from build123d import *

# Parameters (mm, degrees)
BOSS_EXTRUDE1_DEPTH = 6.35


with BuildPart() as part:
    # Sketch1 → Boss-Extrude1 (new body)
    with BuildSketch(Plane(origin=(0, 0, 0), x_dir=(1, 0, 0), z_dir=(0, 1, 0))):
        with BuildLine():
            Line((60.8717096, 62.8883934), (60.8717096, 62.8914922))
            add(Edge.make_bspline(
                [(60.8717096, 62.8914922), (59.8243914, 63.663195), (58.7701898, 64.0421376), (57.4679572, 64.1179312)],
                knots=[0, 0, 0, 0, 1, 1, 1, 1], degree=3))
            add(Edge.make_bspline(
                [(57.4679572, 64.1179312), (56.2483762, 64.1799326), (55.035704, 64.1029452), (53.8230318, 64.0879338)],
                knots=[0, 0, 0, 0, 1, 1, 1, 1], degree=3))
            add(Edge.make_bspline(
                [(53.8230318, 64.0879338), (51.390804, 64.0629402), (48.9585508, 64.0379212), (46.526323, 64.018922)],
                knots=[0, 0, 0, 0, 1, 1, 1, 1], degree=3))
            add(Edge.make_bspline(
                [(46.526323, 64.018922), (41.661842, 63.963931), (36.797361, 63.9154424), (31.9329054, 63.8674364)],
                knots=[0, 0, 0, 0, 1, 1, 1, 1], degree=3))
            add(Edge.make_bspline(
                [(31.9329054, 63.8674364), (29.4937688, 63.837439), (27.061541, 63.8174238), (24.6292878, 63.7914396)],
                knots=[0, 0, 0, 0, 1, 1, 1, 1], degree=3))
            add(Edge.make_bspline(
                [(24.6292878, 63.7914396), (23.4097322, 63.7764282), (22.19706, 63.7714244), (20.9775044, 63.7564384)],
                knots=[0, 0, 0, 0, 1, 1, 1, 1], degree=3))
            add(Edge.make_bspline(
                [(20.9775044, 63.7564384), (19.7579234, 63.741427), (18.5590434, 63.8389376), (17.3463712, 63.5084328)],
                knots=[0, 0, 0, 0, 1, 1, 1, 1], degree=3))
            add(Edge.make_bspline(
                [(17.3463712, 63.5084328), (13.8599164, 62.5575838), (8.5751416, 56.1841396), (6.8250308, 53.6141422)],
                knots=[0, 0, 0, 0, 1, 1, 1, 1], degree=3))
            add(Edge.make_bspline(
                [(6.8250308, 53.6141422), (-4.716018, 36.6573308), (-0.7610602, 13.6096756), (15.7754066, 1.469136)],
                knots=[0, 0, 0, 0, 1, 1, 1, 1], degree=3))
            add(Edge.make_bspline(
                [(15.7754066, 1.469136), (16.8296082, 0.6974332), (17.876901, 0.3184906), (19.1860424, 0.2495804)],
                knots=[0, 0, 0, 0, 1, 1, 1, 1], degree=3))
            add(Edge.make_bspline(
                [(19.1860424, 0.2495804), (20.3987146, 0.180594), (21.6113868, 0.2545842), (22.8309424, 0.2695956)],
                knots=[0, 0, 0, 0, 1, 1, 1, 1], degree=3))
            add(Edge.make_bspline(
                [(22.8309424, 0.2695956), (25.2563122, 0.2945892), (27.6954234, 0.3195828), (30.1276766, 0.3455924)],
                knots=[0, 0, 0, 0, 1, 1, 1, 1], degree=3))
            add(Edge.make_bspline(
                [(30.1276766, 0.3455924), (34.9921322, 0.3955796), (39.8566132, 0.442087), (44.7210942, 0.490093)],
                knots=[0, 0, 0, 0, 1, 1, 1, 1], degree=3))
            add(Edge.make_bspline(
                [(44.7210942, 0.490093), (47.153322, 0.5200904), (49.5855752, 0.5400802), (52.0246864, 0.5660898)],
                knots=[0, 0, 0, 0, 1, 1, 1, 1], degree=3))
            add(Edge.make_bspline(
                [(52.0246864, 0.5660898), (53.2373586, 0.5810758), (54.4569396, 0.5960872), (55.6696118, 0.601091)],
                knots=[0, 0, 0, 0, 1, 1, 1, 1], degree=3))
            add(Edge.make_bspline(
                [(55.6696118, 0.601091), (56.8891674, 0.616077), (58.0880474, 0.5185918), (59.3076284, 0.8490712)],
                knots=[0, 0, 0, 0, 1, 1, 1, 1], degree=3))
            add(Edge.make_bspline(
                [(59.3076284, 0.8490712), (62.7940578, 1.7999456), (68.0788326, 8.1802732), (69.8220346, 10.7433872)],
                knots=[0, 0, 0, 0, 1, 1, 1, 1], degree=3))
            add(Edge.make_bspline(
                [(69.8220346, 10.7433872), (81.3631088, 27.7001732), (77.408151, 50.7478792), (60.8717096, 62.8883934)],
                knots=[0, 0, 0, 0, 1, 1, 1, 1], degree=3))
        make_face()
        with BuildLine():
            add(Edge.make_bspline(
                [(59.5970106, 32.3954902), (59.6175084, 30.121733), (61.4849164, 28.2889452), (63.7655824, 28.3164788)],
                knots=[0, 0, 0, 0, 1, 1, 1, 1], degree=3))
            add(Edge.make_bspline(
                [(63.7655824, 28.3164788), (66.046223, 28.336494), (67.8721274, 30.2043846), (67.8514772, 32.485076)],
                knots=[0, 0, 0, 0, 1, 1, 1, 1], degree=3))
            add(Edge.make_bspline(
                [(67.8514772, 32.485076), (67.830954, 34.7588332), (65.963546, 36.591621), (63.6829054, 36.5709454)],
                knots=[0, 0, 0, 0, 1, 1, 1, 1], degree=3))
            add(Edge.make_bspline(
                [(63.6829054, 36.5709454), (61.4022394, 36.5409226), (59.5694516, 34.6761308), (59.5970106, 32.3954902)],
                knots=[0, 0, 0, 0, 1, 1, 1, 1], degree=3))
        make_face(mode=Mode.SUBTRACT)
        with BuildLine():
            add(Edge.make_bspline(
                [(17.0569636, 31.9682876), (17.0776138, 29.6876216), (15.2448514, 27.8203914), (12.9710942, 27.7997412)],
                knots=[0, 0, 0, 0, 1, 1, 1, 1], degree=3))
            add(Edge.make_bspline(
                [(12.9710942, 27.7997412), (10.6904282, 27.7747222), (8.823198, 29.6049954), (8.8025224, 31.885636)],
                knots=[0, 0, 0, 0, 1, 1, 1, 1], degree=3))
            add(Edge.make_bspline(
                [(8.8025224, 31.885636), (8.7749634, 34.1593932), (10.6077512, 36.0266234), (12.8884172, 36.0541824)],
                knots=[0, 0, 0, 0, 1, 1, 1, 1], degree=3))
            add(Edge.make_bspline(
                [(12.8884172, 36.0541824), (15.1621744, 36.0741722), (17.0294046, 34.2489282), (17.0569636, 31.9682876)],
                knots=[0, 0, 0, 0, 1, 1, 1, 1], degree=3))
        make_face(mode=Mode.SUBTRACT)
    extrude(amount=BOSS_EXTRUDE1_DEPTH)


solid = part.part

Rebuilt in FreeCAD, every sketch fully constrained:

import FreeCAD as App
import Part
import Sketcher
from FreeCAD import Vector
Q = App.Units.Quantity

doc = App.newDocument("Part")
body = doc.addObject("PartDesign::Body", "Body")

sketch1 = doc.addObject("Sketcher::SketchObject", "Sketch")
body.addObject(sketch1)
sketch1.AttachmentSupport = (doc.XZ_Plane, [""])
sketch1.MapMode = "FlatFace"
sketch1.addGeometry(Part.LineSegment(Vector(60.87171, -62.888393, 0), Vector(60.87171, -62.891492, 0)), False)
sketch1.addGeometry(Part.BSplineCurve([Vector(60.87171, -62.891492, 0), Vector(59.824391, -63.663195, 0), Vector(58.77019, -64.042138, 0), Vector(57.467957, -64.117931, 0)], [4, 4], [0, 1], False, 3, [1, 1, 1, 1], False), False)
sketch1.addGeometry(Part.BSplineCurve([Vector(57.467957, -64.117931, 0), Vector(56.248376, -64.179933, 0), Vector(55.035704, -64.102945, 0), Vector(53.823032, -64.087934, 0)], [4, 4], [0, 1], False, 3, [1, 1, 1, 1], False), False)
sketch1.addGeometry(Part.BSplineCurve([Vector(53.823032, -64.087934, 0), Vector(51.390804, -64.06294, 0), Vector(48.958551, -64.037921, 0), Vector(46.526323, -64.018922, 0)], [4, 4], [0, 1], False, 3, [1, 1, 1, 1], False), False)
sketch1.addGeometry(Part.BSplineCurve([Vector(46.526323, -64.018922, 0), Vector(41.661842, -63.963931, 0), Vector(36.797361, -63.915442, 0), Vector(31.932905, -63.867436, 0)], [4, 4], [0, 1], False, 3, [1, 1, 1, 1], False), False)
sketch1.addGeometry(Part.BSplineCurve([Vector(31.932905, -63.867436, 0), Vector(29.493769, -63.837439, 0), Vector(27.061541, -63.817424, 0), Vector(24.629288, -63.79144, 0)], [4, 4], [0, 1], False, 3, [1, 1, 1, 1], False), False)
sketch1.addGeometry(Part.BSplineCurve([Vector(24.629288, -63.79144, 0), Vector(23.409732, -63.776428, 0), Vector(22.19706, -63.771424, 0), Vector(20.977504, -63.756438, 0)], [4, 4], [0, 1], False, 3, [1, 1, 1, 1], False), False)
sketch1.addGeometry(Part.BSplineCurve([Vector(20.977504, -63.756438, 0), Vector(19.757923, -63.741427, 0), Vector(18.559043, -63.838938, 0), Vector(17.346371, -63.508433, 0)], [4, 4], [0, 1], False, 3, [1, 1, 1, 1], False), False)
sketch1.addGeometry(Part.BSplineCurve([Vector(17.346371, -63.508433, 0), Vector(13.859916, -62.557584, 0), Vector(8.575142, -56.18414, 0), Vector(6.825031, -53.614142, 0)], [4, 4], [0, 1], False, 3, [1, 1, 1, 1], False), False)
sketch1.addGeometry(Part.BSplineCurve([Vector(6.825031, -53.614142, 0), Vector(-4.716018, -36.657331, 0), Vector(-0.76106, -13.609676, 0), Vector(15.775407, -1.469136, 0)], [4, 4], [0, 1], False, 3, [1, 1, 1, 1], False), False)
sketch1.addGeometry(Part.BSplineCurve([Vector(15.775407, -1.469136, 0), Vector(16.829608, -0.697433, 0), Vector(17.876901, -0.318491, 0), Vector(19.186042, -0.24958, 0)], [4, 4], [0, 1], False, 3, [1, 1, 1, 1], False), False)
sketch1.addGeometry(Part.BSplineCurve([Vector(19.186042, -0.24958, 0), Vector(20.398715, -0.180594, 0), Vector(21.611387, -0.254584, 0), Vector(22.830942, -0.269596, 0)], [4, 4], [0, 1], False, 3, [1, 1, 1, 1], False), False)
sketch1.addGeometry(Part.BSplineCurve([Vector(22.830942, -0.269596, 0), Vector(25.256312, -0.294589, 0), Vector(27.695423, -0.319583, 0), Vector(30.127677, -0.345592, 0)], [4, 4], [0, 1], False, 3, [1, 1, 1, 1], False), False)
sketch1.addGeometry(Part.BSplineCurve([Vector(30.127677, -0.345592, 0), Vector(34.992132, -0.39558, 0), Vector(39.856613, -0.442087, 0), Vector(44.721094, -0.490093, 0)], [4, 4], [0, 1], False, 3, [1, 1, 1, 1], False), False)
sketch1.addGeometry(Part.BSplineCurve([Vector(44.721094, -0.490093, 0), Vector(47.153322, -0.52009, 0), Vector(49.585575, -0.54008, 0), Vector(52.024686, -0.56609, 0)], [4, 4], [0, 1], False, 3, [1, 1, 1, 1], False), False)
sketch1.addGeometry(Part.BSplineCurve([Vector(52.024686, -0.56609, 0), Vector(53.237359, -0.581076, 0), Vector(54.45694, -0.596087, 0), Vector(55.669612, -0.601091, 0)], [4, 4], [0, 1], False, 3, [1, 1, 1, 1], False), False)
sketch1.addGeometry(Part.BSplineCurve([Vector(55.669612, -0.601091, 0), Vector(56.889167, -0.616077, 0), Vector(58.088047, -0.518592, 0), Vector(59.307628, -0.849071, 0)], [4, 4], [0, 1], False, 3, [1, 1, 1, 1], False), False)
sketch1.addGeometry(Part.BSplineCurve([Vector(59.307628, -0.849071, 0), Vector(62.794058, -1.799946, 0), Vector(68.078833, -8.180273, 0), Vector(69.822035, -10.743387, 0)], [4, 4], [0, 1], False, 3, [1, 1, 1, 1], False), False)
sketch1.addGeometry(Part.BSplineCurve([Vector(69.822035, -10.743387, 0), Vector(81.363109, -27.700173, 0), Vector(77.408151, -50.747879, 0), Vector(60.87171, -62.888393, 0)], [4, 4], [0, 1], False, 3, [1, 1, 1, 1], False), False)
sketch1.addGeometry(Part.BSplineCurve([Vector(12.888417, -36.054182, 0), Vector(15.162174, -36.074172, 0), Vector(17.029405, -34.248928, 0), Vector(17.056964, -31.968288, 0)], [4, 4], [0, 1], False, 3, [1, 1, 1, 1], False), False)
sketch1.addGeometry(Part.BSplineCurve([Vector(17.056964, -31.968288, 0), Vector(17.077614, -29.687622, 0), Vector(15.244851, -27.820391, 0), Vector(12.971094, -27.799741, 0)], [4, 4], [0, 1], False, 3, [1, 1, 1, 1], False), False)
sketch1.addGeometry(Part.BSplineCurve([Vector(12.971094, -27.799741, 0), Vector(10.690428, -27.774722, 0), Vector(8.823198, -29.604995, 0), Vector(8.802522, -31.885636, 0)], [4, 4], [0, 1], False, 3, [1, 1, 1, 1], False), False)
sketch1.addGeometry(Part.BSplineCurve([Vector(8.802522, -31.885636, 0), Vector(8.774963, -34.159393, 0), Vector(10.607751, -36.026623, 0), Vector(12.888417, -36.054182, 0)], [4, 4], [0, 1], False, 3, [1, 1, 1, 1], False), False)
sketch1.addGeometry(Part.BSplineCurve([Vector(59.597011, -32.39549, 0), Vector(59.617508, -30.121733, 0), Vector(61.484916, -28.288945, 0), Vector(63.765582, -28.316479, 0)], [4, 4], [0, 1], False, 3, [1, 1, 1, 1], False), False)
sketch1.addGeometry(Part.BSplineCurve([Vector(63.682905, -36.570945, 0), Vector(61.402239, -36.540923, 0), Vector(59.569452, -34.676131, 0), Vector(59.597011, -32.39549, 0)], [4, 4], [0, 1], False, 3, [1, 1, 1, 1], False), False)
sketch1.addGeometry(Part.BSplineCurve([Vector(67.851477, -32.485076, 0), Vector(67.830954, -34.758833, 0), Vector(65.963546, -36.591621, 0), Vector(63.682905, -36.570945, 0)], [4, 4], [0, 1], False, 3, [1, 1, 1, 1], False), False)
sketch1.addGeometry(Part.BSplineCurve([Vector(63.765582, -28.316479, 0), Vector(66.046223, -28.336494, 0), Vector(67.872127, -30.204385, 0), Vector(67.851477, -32.485076, 0)], [4, 4], [0, 1], False, 3, [1, 1, 1, 1], False), False)
sketch1.addConstraint(Sketcher.Constraint("Block", 1))
sketch1.addConstraint(Sketcher.Constraint("Block", 2))
sketch1.addConstraint(Sketcher.Constraint("Block", 3))
sketch1.addConstraint(Sketcher.Constraint("Block", 4))
sketch1.addConstraint(Sketcher.Constraint("Block", 5))
sketch1.addConstraint(Sketcher.Constraint("Block", 6))
sketch1.addConstraint(Sketcher.Constraint("Block", 7))
sketch1.addConstraint(Sketcher.Constraint("Block", 8))
sketch1.addConstraint(Sketcher.Constraint("Block", 9))
sketch1.addConstraint(Sketcher.Constraint("Block", 10))
sketch1.addConstraint(Sketcher.Constraint("Block", 11))
sketch1.addConstraint(Sketcher.Constraint("Block", 12))
sketch1.addConstraint(Sketcher.Constraint("Block", 13))
sketch1.addConstraint(Sketcher.Constraint("Block", 14))
sketch1.addConstraint(Sketcher.Constraint("Block", 15))
sketch1.addConstraint(Sketcher.Constraint("Block", 16))
sketch1.addConstraint(Sketcher.Constraint("Block", 17))
sketch1.addConstraint(Sketcher.Constraint("Block", 18))
sketch1.addConstraint(Sketcher.Constraint("Block", 19))
sketch1.addConstraint(Sketcher.Constraint("Block", 20))
sketch1.addConstraint(Sketcher.Constraint("Block", 21))
sketch1.addConstraint(Sketcher.Constraint("Block", 22))
sketch1.addConstraint(Sketcher.Constraint("Block", 23))
sketch1.addConstraint(Sketcher.Constraint("Block", 24))
sketch1.addConstraint(Sketcher.Constraint("Block", 25))
sketch1.addConstraint(Sketcher.Constraint("Block", 26))
sketch1.addConstraint(Sketcher.Constraint("Coincident", 0, 2, 1, 1))
sketch1.addConstraint(Sketcher.Constraint("Coincident", 18, 2, 0, 1))
pad1 = doc.addObject("PartDesign::Pad", "Pad")
body.addObject(pad1)
pad1.Profile = sketch1
pad1.Length = Q("0.25 in")
pad1.Reversed = True

doc.recompute()
